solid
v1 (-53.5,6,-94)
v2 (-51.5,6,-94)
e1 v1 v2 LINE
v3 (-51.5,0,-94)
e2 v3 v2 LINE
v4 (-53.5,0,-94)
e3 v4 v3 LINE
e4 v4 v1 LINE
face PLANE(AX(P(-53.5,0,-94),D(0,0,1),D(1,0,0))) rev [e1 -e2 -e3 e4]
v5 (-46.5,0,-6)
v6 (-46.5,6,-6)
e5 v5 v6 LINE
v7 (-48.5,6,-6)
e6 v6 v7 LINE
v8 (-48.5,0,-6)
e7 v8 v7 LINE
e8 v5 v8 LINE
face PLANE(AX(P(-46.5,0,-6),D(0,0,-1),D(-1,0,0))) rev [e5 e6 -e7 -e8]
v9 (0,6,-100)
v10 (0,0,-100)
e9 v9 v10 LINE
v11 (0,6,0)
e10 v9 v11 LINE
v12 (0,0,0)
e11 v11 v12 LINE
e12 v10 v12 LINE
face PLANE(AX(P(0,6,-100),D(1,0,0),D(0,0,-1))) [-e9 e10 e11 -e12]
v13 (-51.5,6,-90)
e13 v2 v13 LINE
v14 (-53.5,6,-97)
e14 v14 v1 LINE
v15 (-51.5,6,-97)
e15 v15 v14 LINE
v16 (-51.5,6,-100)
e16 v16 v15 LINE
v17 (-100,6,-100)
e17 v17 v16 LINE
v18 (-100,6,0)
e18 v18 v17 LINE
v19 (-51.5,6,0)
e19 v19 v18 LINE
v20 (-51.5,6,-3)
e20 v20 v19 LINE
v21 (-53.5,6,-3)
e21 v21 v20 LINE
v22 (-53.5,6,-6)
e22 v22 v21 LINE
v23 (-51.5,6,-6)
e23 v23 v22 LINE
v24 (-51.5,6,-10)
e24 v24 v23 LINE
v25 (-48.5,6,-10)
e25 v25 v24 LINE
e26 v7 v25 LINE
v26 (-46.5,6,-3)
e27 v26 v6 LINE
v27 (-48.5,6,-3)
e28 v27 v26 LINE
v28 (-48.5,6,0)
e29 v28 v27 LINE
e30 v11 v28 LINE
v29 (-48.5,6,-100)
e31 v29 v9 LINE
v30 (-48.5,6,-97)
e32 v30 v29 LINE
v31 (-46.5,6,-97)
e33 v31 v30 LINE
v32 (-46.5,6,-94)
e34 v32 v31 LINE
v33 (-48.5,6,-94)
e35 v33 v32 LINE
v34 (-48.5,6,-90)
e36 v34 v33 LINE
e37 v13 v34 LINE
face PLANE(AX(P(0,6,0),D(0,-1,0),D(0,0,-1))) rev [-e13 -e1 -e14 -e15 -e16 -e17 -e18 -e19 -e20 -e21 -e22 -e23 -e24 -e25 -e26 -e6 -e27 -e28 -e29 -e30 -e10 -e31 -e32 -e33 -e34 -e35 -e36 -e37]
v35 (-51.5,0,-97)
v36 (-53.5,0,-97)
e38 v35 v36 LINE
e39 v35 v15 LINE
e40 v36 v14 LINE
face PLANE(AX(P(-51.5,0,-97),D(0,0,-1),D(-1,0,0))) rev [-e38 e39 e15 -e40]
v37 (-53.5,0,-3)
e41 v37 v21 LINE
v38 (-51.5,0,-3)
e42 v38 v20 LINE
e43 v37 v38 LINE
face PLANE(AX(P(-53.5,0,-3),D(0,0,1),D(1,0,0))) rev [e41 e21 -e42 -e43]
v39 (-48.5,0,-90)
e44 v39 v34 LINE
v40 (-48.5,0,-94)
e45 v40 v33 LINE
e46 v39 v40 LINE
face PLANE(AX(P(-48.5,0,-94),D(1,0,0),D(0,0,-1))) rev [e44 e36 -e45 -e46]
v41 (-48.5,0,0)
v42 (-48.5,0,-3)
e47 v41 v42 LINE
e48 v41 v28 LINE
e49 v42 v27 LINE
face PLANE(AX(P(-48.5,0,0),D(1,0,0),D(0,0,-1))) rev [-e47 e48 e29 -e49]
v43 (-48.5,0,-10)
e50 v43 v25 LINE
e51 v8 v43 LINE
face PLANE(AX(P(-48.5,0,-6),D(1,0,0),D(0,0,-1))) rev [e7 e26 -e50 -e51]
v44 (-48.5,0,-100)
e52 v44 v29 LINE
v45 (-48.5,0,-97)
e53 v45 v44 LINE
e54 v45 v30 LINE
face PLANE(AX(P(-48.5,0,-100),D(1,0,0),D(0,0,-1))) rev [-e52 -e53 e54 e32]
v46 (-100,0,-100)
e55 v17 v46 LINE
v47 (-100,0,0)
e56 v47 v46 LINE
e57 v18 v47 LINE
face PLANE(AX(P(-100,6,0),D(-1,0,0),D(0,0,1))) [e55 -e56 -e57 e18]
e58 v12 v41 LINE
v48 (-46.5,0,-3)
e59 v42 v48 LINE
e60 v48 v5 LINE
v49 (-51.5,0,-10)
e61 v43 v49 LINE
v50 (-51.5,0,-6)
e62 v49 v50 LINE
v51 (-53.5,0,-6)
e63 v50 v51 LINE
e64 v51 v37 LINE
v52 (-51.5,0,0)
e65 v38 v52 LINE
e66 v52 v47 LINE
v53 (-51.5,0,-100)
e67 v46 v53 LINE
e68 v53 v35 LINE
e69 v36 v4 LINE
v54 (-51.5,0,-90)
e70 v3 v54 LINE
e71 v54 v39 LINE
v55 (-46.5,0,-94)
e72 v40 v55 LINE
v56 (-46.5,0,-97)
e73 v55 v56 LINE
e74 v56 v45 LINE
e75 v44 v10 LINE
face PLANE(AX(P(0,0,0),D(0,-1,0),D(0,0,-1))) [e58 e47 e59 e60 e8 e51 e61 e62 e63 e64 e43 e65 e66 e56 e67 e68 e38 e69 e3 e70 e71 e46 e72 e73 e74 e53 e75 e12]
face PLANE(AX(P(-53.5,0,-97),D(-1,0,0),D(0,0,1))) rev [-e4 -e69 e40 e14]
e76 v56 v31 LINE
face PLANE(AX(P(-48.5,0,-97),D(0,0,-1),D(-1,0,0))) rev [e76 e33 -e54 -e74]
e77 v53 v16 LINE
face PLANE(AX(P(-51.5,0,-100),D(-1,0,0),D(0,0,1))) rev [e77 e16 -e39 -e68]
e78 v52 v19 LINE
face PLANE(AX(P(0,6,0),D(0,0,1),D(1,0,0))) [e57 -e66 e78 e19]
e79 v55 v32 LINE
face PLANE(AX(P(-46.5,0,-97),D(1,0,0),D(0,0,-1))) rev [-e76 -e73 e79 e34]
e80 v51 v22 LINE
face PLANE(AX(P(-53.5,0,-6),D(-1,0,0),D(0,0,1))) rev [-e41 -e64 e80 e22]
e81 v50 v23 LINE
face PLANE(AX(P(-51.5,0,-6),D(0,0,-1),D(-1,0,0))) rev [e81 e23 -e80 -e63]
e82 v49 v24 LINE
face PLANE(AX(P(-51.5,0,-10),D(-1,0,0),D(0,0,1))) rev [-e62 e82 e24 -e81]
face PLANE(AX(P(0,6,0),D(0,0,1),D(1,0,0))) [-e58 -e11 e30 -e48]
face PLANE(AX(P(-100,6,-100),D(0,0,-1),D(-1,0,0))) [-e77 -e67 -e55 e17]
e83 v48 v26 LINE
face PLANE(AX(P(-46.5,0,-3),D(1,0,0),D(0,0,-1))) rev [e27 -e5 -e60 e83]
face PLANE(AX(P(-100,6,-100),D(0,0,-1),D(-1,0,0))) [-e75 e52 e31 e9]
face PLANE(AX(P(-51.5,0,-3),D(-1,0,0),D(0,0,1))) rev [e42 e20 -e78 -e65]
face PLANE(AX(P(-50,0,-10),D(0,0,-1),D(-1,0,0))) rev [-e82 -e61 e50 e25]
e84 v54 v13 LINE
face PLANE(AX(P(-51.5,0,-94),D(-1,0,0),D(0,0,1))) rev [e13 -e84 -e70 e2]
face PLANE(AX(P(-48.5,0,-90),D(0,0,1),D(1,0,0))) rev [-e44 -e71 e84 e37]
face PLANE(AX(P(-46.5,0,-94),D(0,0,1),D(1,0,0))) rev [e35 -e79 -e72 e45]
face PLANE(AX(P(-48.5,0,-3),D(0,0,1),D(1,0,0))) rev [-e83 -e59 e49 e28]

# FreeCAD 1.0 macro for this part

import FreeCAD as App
import Part
import Sketcher
Q = App.Units.Quantity

doc = App.newDocument("Part")
body = doc.addObject("PartDesign::Body", "Body")

# Sketch on XZ plane
sketch1 = body.newObject("Sketcher::SketchObject", "Sketch")
sketch1.AttachmentSupport = (doc.getObject("XZ_Plane"), [""])
sketch1.MapMode = "FlatFace"
sketch1.addGeometry([
    Part.LineSegment(App.Vector(-100, -100, 0), App.Vector(-100, 0, 0)),
    Part.LineSegment(App.Vector(-100, 0, 0), App.Vector(0, 0, 0)),
    Part.LineSegment(App.Vector(0, 0, 0), App.Vector(0, -100, 0)),
    Part.LineSegment(App.Vector(0, -100, 0), App.Vector(-100, -100, 0)),
], False)
sketch1.addConstraint([
    Sketcher.Constraint("Coincident", 0, 2, 1, 1),
    Sketcher.Constraint("Coincident", 1, 2, 2, 1),
    Sketcher.Constraint("Coincident", 2, 2, 3, 1),
    Sketcher.Constraint("Coincident", 3, 2, 0, 1),
    Sketcher.Constraint("Vertical", 0),
    Sketcher.Constraint("Horizontal", 1),
    Sketcher.Constraint("Vertical", 2),
    Sketcher.Constraint("Horizontal", 3),
    Sketcher.Constraint("Coincident", 1, 2, -1, 1),
    Sketcher.Constraint("Equal", 3, 0),
    Sketcher.Constraint("DistanceX", 1, 1, 1, 2, Q("100 mm")),
])
pad1 = body.newObject("PartDesign::Pad", "Pad")
pad1.Profile = sketch1
pad1.Length = 6
pad1.Reversed = True

# Sketch on XZ plane
sketch2 = body.newObject("Sketcher::SketchObject", "Sketch001")
sketch2.AttachmentSupport = (doc.getObject("XZ_Plane"), [""])
sketch2.MapMode = "FlatFace"
sketch2.AttachmentOffset = App.Placement(App.Vector(0, 0, -6), App.Rotation())
sketch2.addGeometry([
    Part.LineSegment(App.Vector(-48.5, -100, 0), App.Vector(-51.5, -100, 0)),  # 0
    Part.LineSegment(App.Vector(-51.5, -100, 0), App.Vector(-51.5, -97, 0)),  # 1
    Part.LineSegment(App.Vector(-51.5, -97, 0), App.Vector(-53.5, -97, 0)),  # 2
    Part.LineSegment(App.Vector(-53.5, -97, 0), App.Vector(-53.5, -94, 0)),  # 3
    Part.LineSegment(App.Vector(-53.5, -94, 0), App.Vector(-51.5, -94, 0)),  # 4
    Part.LineSegment(App.Vector(-51.5, -94, 0), App.Vector(-51.5, -90, 0)),  # 5
    Part.LineSegment(App.Vector(-51.5, -90, 0), App.Vector(-48.5, -90, 0)),  # 6
    Part.LineSegment(App.Vector(-48.5, -90, 0), App.Vector(-48.5, -94, 0)),  # 7
    Part.LineSegment(App.Vector(-48.5, -94, 0), App.Vector(-46.5, -94, 0)),  # 8
    Part.LineSegment(App.Vector(-46.5, -94, 0), App.Vector(-46.5, -97, 0)),  # 9
    Part.LineSegment(App.Vector(-46.5, -97, 0), App.Vector(-48.5, -97, 0)),  # 10
    Part.LineSegment(App.Vector(-48.5, -97, 0), App.Vector(-48.5, -100, 0)),  # 11
    Part.LineSegment(App.Vector(-48.5, 0, 0), App.Vector(-48.5, -3, 0)),  # 12
    Part.LineSegment(App.Vector(-48.5, -3, 0), App.Vector(-46.5, -3, 0)),  # 13
    Part.LineSegment(App.Vector(-46.5, -3, 0), App.Vector(-46.5, -6, 0)),  # 14
    Part.LineSegment(App.Vector(-46.5, -6, 0), App.Vector(-48.5, -6, 0)),  # 15
    Part.LineSegment(App.Vector(-48.5, -6, 0), App.Vector(-48.5, -10, 0)),  # 16
    Part.LineSegment(App.Vector(-48.5, -10, 0), App.Vector(-51.5, -10, 0)),  # 17
    Part.LineSegment(App.Vector(-51.5, -10, 0), App.Vector(-51.5, -6, 0)),  # 18
    Part.LineSegment(App.Vector(-51.5, -6, 0), App.Vector(-53.5, -6, 0)),  # 19
    Part.LineSegment(App.Vector(-53.5, -6, 0), App.Vector(-53.5, -3, 0)),  # 20
    Part.LineSegment(App.Vector(-53.5, -3, 0), App.Vector(-51.5, -3, 0)),  # 21
    Part.LineSegment(App.Vector(-51.5, -3, 0), App.Vector(-51.5, 0, 0)),  # 22
    Part.LineSegment(App.Vector(-51.5, 0, 0), App.Vector(-48.5, 0, 0)),  # 23
], False)
sketch2.addConstraint([
    Sketcher.Constraint("Coincident", 0, 2, 1, 1),
    Sketcher.Constraint("Coincident", 1, 2, 2, 1),
    Sketcher.Constraint("Coincident", 2, 2, 3, 1),
    Sketcher.Constraint("Coincident", 3, 2, 4, 1),
    Sketcher.Constraint("Coincident", 4, 2, 5, 1),
    Sketcher.Constraint("Coincident", 5, 2, 6, 1),
    Sketcher.Constraint("Coincident", 6, 2, 7, 1),
    Sketcher.Constraint("Coincident", 7, 2, 8, 1),
    Sketcher.Constraint("Coincident", 8, 2, 9, 1),
    Sketcher.Constraint("Coincident", 9, 2, 10, 1),
    Sketcher.Constraint("Coincident", 10, 2, 11, 1),
    Sketcher.Constraint("Coincident", 11, 2, 0, 1),
    Sketcher.Constraint("Coincident", 12, 2, 13, 1),
    Sketcher.Constraint("Coincident", 13, 2, 14, 1),
    Sketcher.Constraint("Coincident", 14, 2, 15, 1),
    Sketcher.Constraint("Coincident", 15, 2, 16, 1),
    Sketcher.Constraint("Coincident", 16, 2, 17, 1),
    Sketcher.Constraint("Coincident", 17, 2, 18, 1),
    Sketcher.Constraint("Coincident", 18, 2, 19, 1),
    Sketcher.Constraint("Coincident", 19, 2, 20, 1),
    Sketcher.Constraint("Coincident", 20, 2, 21, 1),
    Sketcher.Constraint("Coincident", 21, 2, 22, 1),
    Sketcher.Constraint("Coincident", 22, 2, 23, 1),
    Sketcher.Constraint("Coincident", 23, 2, 12, 1),
    Sketcher.Constraint("Horizontal", 0),
    Sketcher.Constraint("Vertical", 1),
    Sketcher.Constraint("Horizontal", 2),
    Sketcher.Constraint("Vertical", 3),
    Sketcher.Constraint("Horizontal", 4),
    Sketcher.Constraint("Vertical", 5),
    Sketcher.Constraint("Horizontal", 6),
    Sketcher.Constraint("Vertical", 7),
    Sketcher.Constraint("Horizontal", 8),
    Sketcher.Constraint("Vertical", 9),
    Sketcher.Constraint("Horizontal", 10),
    Sketcher.Constraint("Vertical", 11),
    Sketcher.Constraint("Vertical", 12),
    Sketcher.Constraint("Horizontal", 13),
    Sketcher.Constraint("Vertical", 14),
    Sketcher.Constraint("Horizontal", 15),
    Sketcher.Constraint("Vertical", 16),
    Sketcher.Constraint("Horizontal", 17),
    Sketcher.Constraint("Vertical", 18),
    Sketcher.Constraint("Horizontal", 19),
    Sketcher.Constraint("Vertical", 20),
    Sketcher.Constraint("Horizontal", 21),
    Sketcher.Constraint("Vertical", 22),
    Sketcher.Constraint("Horizontal", 23),
    Sketcher.Constraint("PointOnObject", 22, 2, -1),
    Sketcher.Constraint("Horizontal", 4, 2, 7, 2),
    Sketcher.Constraint("Horizontal", 2, 2, 9, 2),
    Sketcher.Constraint("Horizontal", 15, 2, 18, 2),
    Sketcher.Constraint("Horizontal", 13, 2, 20, 2),
    Sketcher.Constraint("Vertical", 1, 2, 4, 2),
    Sketcher.Constraint("Vertical", 7, 2, 10, 2),
    Sketcher.Constraint("Vertical", 11, 2, 12, 2),
    Sketcher.Constraint("Vertical", 9, 2, 13, 2),
    Sketcher.Constraint("Vertical", 12, 2, 15, 2),
    Sketcher.Constraint("Vertical", 5, 2, 17, 2),
    Sketcher.Constraint("Vertical", 3, 2, 19, 2),
    Sketcher.Constraint("Vertical", 18, 2, 21, 2),
    Sketcher.Constraint("Equal", 4, 8),
    Sketcher.Constraint("Equal", 23, 1),
    Sketcher.Constraint("Equal", 1, 3),
    Sketcher.Constraint("Equal", 11, 12),
    Sketcher.Constraint("Equal", 12, 14),
    Sketcher.Constraint("Equal", 7, 16),
    Sketcher.Constraint("DistanceX", 0, 2, 0, 1, Q("3 mm")),
    Sketcher.Constraint("DistanceX", 2, 2, 2, 1, Q("2 mm")),
    Sketcher.Constraint("DistanceY", 5, 1, 5, 2, Q("4 mm")),
    Sketcher.Constraint("DistanceY", 0, 2, -1, 1, Q("100 mm")),
    Sketcher.Constraint("DistanceX", 0, 2, -1, 1, Q("51.5 mm")),
])
pocket1 = body.newObject("PartDesign::Pocket", "Pocket")
pocket1.Profile = sketch2
pocket1.Type = "ThroughAll"
pocket1.Reversed = True

doc.recompute()
